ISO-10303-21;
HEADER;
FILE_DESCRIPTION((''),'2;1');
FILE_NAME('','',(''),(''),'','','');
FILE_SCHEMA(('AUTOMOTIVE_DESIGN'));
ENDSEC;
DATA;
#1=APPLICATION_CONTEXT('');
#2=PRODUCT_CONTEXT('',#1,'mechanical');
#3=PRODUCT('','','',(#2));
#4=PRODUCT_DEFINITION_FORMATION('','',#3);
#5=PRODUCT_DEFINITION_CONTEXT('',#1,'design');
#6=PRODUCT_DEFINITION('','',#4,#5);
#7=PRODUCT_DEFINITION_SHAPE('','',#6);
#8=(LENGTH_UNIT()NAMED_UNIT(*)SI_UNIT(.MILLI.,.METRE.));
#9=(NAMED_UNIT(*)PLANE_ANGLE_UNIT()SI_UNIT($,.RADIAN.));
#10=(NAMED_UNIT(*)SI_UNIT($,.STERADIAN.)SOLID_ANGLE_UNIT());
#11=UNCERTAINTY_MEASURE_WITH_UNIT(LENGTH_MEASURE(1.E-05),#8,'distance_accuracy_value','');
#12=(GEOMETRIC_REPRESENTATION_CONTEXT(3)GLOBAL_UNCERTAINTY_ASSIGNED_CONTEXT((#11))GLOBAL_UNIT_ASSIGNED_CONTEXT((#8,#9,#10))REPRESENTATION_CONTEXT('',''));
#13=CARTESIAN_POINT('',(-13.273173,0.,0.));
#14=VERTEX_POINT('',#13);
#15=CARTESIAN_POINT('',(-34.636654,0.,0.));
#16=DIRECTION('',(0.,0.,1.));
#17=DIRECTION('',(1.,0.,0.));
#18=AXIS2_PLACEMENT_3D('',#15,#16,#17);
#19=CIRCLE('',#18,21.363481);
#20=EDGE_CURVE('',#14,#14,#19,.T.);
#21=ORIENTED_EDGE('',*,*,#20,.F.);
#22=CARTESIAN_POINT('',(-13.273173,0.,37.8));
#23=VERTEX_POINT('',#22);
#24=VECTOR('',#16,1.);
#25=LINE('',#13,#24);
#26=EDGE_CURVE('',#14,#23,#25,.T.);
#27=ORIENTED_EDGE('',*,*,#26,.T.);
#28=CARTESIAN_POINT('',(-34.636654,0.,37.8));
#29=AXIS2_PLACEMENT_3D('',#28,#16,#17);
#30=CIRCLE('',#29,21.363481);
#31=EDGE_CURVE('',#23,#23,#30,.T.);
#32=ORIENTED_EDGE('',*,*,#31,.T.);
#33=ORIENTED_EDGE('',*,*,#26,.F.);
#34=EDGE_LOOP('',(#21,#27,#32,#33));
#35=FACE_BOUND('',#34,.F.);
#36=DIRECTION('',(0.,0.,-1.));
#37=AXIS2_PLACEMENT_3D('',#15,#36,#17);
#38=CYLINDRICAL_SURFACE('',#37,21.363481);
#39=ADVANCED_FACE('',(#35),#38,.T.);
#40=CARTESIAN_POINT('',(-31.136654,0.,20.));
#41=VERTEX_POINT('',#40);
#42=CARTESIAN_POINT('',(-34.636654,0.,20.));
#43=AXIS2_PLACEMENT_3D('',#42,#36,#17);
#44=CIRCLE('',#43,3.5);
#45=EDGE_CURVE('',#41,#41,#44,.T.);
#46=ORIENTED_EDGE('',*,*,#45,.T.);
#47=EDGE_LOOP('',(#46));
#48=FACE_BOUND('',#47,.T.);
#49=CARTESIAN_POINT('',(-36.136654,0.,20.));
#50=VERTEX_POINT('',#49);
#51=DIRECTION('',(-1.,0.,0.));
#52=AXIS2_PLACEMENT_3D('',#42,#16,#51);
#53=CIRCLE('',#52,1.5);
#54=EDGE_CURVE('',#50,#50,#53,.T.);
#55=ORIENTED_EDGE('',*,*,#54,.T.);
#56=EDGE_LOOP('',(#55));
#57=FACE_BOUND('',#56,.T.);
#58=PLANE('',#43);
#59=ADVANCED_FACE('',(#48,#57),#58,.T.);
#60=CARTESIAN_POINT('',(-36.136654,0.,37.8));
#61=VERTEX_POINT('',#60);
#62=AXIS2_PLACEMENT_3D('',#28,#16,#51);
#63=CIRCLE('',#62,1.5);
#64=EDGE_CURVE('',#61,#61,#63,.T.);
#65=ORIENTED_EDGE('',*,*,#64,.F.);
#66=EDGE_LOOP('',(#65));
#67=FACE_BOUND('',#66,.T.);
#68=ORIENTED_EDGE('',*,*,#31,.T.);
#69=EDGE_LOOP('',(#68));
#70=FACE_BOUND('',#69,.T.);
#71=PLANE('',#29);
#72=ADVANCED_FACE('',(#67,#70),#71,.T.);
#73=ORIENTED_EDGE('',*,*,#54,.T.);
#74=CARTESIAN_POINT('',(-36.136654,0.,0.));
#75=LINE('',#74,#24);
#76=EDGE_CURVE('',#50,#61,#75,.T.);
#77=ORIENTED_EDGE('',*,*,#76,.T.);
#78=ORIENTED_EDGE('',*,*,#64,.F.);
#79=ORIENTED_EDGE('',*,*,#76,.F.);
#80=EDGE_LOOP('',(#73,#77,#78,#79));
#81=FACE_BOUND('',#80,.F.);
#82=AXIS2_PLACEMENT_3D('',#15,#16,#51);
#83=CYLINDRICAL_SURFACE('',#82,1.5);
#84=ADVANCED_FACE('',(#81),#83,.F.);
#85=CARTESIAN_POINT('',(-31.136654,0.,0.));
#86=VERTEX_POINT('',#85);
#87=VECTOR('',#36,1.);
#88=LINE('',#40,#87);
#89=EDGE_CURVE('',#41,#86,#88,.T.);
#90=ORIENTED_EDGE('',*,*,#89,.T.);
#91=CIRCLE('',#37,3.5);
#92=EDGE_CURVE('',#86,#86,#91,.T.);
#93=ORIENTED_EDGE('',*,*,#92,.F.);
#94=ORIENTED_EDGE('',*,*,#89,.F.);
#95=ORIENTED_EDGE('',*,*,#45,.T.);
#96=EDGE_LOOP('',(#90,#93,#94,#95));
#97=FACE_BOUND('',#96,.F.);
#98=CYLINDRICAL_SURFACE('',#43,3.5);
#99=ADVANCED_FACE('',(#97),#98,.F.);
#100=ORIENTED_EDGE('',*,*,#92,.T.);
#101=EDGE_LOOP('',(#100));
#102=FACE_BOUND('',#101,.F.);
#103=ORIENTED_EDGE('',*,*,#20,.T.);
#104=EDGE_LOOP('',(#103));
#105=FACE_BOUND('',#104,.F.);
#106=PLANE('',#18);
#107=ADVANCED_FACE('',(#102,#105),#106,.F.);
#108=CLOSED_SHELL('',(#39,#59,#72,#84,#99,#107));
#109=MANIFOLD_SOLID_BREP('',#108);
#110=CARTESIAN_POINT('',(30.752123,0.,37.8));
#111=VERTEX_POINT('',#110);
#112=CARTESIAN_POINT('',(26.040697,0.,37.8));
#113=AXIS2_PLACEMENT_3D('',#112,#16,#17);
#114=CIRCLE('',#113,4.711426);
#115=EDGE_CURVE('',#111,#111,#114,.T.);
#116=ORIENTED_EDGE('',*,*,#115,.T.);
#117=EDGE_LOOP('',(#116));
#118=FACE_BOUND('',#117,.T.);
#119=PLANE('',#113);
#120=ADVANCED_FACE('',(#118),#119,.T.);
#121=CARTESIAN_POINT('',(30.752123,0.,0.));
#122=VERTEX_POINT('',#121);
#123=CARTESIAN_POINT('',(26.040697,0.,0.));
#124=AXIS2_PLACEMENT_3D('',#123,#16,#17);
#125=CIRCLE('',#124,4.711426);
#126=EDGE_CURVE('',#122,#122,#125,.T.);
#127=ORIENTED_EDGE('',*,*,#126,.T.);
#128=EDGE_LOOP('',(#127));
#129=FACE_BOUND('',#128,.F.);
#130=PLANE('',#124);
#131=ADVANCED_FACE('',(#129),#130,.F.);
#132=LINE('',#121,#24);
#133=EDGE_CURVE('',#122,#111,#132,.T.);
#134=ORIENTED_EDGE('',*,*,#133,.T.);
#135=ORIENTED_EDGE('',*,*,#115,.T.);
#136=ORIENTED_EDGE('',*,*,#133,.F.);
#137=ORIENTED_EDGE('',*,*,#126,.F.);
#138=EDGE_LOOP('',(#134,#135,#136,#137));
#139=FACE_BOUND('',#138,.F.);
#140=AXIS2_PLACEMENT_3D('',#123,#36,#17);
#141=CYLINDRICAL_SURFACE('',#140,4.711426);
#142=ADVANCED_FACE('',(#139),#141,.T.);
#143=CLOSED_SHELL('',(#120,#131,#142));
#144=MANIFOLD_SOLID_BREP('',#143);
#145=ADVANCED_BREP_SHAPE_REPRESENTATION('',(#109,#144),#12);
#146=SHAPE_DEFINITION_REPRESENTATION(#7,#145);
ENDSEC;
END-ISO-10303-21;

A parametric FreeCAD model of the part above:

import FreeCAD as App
import Part
import Sketcher
from FreeCAD import Vector

doc = App.newDocument("Part")
body = doc.addObject("PartDesign::Body", "Body")

sketch1 = body.newObject("Sketcher::SketchObject", "Sketch")
sketch1.AttachmentSupport = (doc.getObject("XY_Plane"), [""])
sketch1.MapMode = "FlatFace"
sketch1.addGeometry(Part.Circle(Vector(-35, 0, 0), Vector(0, 0, 1), 21), False)
sketch1.addConstraint([
    Sketcher.Constraint("PointOnObject", 0, 3, -1),
    Sketcher.Constraint("Diameter", 0, 42.726962),
    Sketcher.Constraint("DistanceX", 0, 3, -1, 1, 34.636654),
])
pad1 = body.newObject("PartDesign::Pad", "Pad")
pad1.Profile = sketch1
pad1.Length = 37.8

sketch2 = body.newObject("Sketcher::SketchObject", "Sketch001")
sketch2.AttachmentSupport = (doc.getObject("XY_Plane"), [""])
sketch2.MapMode = "FlatFace"
sketch2.addGeometry(Part.Circle(Vector(-34.6, 0, 0), Vector(0, 0, 1), 1.5), False)
sketch2.addConstraint([
    Sketcher.Constraint("PointOnObject", 0, 3, -1),
    Sketcher.Constraint("Diameter", 0, 3.0),
    Sketcher.Constraint("DistanceX", 0, 3, -1, 1, 34.636654),
])
doc.recompute()
hole = body.newObject("PartDesign::Hole", "Hole")
hole.Profile = sketch2
hole.ThreadType = "None"
hole.Diameter = 3
hole.DepthType = "ThroughAll"
hole.HoleCutType = "Counterbore"
hole.HoleCutDiameter = 7
hole.HoleCutDepth = 20
hole.Reversed = True
body2 = doc.addObject("PartDesign::Body", "Body001")

sketch3 = body2.newObject("Sketcher::SketchObject", "Sketch002")
sketch3.AttachmentSupport = (doc.getObject("XY_Plane001"), [""])
sketch3.MapMode = "FlatFace"
sketch3.addGeometry(Part.Circle(Vector(26, 0, 0), Vector(0, 0, 1), 4.7), False)
sketch3.addConstraint([
    Sketcher.Constraint("PointOnObject", 0, 3, -1),
    Sketcher.Constraint("Diameter", 0, 9.422852),
    Sketcher.Constraint("DistanceX", -1, 1, 0, 3, 26.040697),
])
pad2 = body2.newObject("PartDesign::Pad", "Pad001")
pad2.Profile = sketch3
pad2.Length = 37.8

doc.recompute()
